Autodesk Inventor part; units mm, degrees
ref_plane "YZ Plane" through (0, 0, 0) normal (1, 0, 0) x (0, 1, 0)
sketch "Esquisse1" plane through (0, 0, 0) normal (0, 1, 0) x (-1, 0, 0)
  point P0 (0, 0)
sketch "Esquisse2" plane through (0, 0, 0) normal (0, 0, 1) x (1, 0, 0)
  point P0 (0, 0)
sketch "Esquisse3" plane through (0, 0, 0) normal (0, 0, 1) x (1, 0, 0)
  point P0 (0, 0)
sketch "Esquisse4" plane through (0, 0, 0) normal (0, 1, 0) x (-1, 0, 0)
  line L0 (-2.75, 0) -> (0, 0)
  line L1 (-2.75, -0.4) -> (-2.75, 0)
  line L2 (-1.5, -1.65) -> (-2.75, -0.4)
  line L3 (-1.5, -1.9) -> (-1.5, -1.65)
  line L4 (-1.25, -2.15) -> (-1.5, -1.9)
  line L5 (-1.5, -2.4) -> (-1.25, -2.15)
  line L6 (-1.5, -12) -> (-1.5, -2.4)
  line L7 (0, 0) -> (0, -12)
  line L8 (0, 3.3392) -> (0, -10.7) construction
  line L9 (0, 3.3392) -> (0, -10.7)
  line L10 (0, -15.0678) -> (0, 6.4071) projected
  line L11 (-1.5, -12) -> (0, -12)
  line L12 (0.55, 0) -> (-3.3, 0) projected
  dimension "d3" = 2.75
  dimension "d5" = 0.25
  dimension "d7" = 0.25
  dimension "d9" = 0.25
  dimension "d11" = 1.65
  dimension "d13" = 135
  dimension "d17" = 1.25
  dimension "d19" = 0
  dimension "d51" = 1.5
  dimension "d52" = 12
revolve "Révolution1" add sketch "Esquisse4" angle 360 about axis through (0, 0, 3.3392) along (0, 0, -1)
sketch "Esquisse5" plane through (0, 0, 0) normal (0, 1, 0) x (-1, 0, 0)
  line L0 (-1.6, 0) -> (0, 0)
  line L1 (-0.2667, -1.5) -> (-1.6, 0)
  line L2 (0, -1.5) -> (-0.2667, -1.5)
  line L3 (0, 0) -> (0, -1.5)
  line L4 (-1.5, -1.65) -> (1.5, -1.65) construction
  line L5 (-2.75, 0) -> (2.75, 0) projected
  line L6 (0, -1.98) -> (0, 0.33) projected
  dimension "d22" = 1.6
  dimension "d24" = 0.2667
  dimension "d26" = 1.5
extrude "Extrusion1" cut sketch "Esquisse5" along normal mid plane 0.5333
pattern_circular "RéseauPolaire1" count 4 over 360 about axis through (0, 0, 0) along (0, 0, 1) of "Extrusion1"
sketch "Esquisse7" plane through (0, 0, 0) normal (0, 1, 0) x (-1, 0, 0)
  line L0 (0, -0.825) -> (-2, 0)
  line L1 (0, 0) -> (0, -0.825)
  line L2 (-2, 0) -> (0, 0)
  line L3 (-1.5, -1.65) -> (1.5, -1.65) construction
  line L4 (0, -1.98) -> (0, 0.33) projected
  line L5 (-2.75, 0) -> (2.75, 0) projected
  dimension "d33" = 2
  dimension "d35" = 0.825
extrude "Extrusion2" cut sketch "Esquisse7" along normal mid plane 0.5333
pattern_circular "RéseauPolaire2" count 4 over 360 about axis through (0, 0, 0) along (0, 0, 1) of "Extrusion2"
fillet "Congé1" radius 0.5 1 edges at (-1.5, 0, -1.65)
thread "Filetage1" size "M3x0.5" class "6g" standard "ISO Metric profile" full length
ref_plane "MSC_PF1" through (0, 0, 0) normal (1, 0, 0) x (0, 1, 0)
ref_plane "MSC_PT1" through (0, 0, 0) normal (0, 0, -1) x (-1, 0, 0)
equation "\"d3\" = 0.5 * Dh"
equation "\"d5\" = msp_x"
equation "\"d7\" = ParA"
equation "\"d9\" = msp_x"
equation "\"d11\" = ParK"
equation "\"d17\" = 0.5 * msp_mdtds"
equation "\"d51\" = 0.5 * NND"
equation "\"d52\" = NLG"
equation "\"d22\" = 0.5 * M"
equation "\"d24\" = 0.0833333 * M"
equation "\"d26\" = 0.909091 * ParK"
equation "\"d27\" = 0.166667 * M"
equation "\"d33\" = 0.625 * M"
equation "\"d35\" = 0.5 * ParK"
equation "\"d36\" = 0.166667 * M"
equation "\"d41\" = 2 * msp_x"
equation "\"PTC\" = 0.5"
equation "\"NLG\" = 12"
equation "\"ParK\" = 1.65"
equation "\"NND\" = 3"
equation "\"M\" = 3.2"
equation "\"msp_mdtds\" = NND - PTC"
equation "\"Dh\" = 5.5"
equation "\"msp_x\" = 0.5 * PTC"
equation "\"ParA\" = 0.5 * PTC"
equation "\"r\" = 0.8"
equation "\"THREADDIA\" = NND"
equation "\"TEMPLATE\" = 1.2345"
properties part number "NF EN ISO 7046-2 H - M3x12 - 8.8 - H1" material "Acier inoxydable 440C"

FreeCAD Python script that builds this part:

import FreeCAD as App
import Part
import Sketcher

V = App.Vector


def edges_at(feature, points):
    """Names of the edges that pass closest to the given points."""
    edges = feature.Shape.Edges
    near = lambda p: min(range(len(edges)), key=lambda i: edges[i].distToShape(Part.Vertex(*p))[0])
    return sorted({f"Edge{near(p) + 1}" for p in points})

doc = App.newDocument("Part")
body = doc.addObject("PartDesign::Body", "Body")

# Sketch on XZ plane
sketch1 = doc.addObject("Sketcher::SketchObject", "Sketch")
body.addObject(sketch1)
sketch1.AttachmentSupport = (doc.XZ_Plane, [""])
sketch1.MapMode = "FlatFace"
sketch1.addGeometry(Part.LineSegment(V(0, 0, 0), V(2.75, 0, 0)), False)
sketch1.addGeometry(Part.LineSegment(V(2.75, 0, 0), V(2.75, -0.4, 0)), False)
sketch1.addGeometry(Part.LineSegment(V(2.75, -0.4, 0), V(1.5, -1.65, 0)), False)
sketch1.addGeometry(Part.LineSegment(V(1.5, -1.65, 0), V(1.5, -1.9, 0)), False)
sketch1.addGeometry(Part.LineSegment(V(1.5, -1.9, 0), V(1.25, -2.15, 0)), False)
sketch1.addGeometry(Part.LineSegment(V(1.25, -2.15, 0), V(1.5, -2.4, 0)), False)
sketch1.addGeometry(Part.LineSegment(V(1.5, -2.4, 0), V(1.5, -12, 0)), False)
sketch1.addGeometry(Part.LineSegment(V(1.5, -12, 0), V(0, -12, 0)), False)
sketch1.addGeometry(Part.LineSegment(V(0, -12, 0), V(0, 0, 0)), False)
sketch1.addConstraint(Sketcher.Constraint("Coincident", 0, 2, 1, 1))
sketch1.addConstraint(Sketcher.Constraint("Coincident", 1, 2, 2, 1))
sketch1.addConstraint(Sketcher.Constraint("Coincident", 2, 2, 3, 1))
sketch1.addConstraint(Sketcher.Constraint("Coincident", 3, 2, 4, 1))
sketch1.addConstraint(Sketcher.Constraint("Coincident", 4, 2, 5, 1))
sketch1.addConstraint(Sketcher.Constraint("Coincident", 5, 2, 6, 1))
sketch1.addConstraint(Sketcher.Constraint("Coincident", 6, 2, 7, 1))
sketch1.addConstraint(Sketcher.Constraint("Coincident", 7, 2, 8, 1))
sketch1.addConstraint(Sketcher.Constraint("Coincident", 8, 2, 0, 1))
sketch1.addConstraint(Sketcher.Constraint("Horizontal", 0))
sketch1.addConstraint(Sketcher.Constraint("Vertical", 1))
sketch1.addConstraint(Sketcher.Constraint("Vertical", 3))
sketch1.addConstraint(Sketcher.Constraint("Vertical", 6))
sketch1.addConstraint(Sketcher.Constraint("Horizontal", 7))
sketch1.addConstraint(Sketcher.Constraint("Vertical", 8))
sketch1.addConstraint(Sketcher.Constraint("Coincident", 8, 2, -1, 1))
sketch1.addConstraint(Sketcher.Constraint("Parallel", 2, 4))
sketch1.addConstraint(Sketcher.Constraint("Perpendicular", 4, 5))
sketch1.addConstraint(Sketcher.Constraint("Vertical", 3, 2, 5, 2))
sketch1.addConstraint(Sketcher.Constraint("Equal", 4, 5))
sketch1.addConstraint(Sketcher.Constraint("DistanceY", 8, 1, 8, 2, 12.0))
sketch1.addConstraint(Sketcher.Constraint("DistanceX", 7, 2, 7, 1, 1.5))
sketch1.addConstraint(Sketcher.Constraint("DistanceX", 0, 1, 0, 2, 2.75))
sketch1.addConstraint(Sketcher.Constraint("DistanceY", 3, 2, 3, 1, 0.25))
sketch1.addConstraint(Sketcher.Constraint("DistanceX", 4, 2, 1, 2, 1.5))
sketch1.addConstraint(Sketcher.Constraint("DistanceY", 2, 2, -1, 1, 1.65))
revolution = doc.addObject("PartDesign::Revolution", "Revolution")
body.addObject(revolution)
revolution.Profile = sketch1
revolution.ReferenceAxis = (sketch1, ["V_Axis"])
revolution.Angle = 360

# Sketch on XZ plane
sketch2 = doc.addObject("Sketcher::SketchObject", "Sketch001")
body.addObject(sketch2)
sketch2.AttachmentSupport = (doc.XZ_Plane, [""])
sketch2.MapMode = "FlatFace"
sketch2.addGeometry(Part.LineSegment(V(0, 0, 0), V(1.6, 0, 0)), False)
sketch2.addGeometry(Part.LineSegment(V(1.6, 0, 0), V(0.27, -1.5, 0)), False)
sketch2.addGeometry(Part.LineSegment(V(0.27, -1.5, 0), V(0, -1.5, 0)), False)
sketch2.addGeometry(Part.LineSegment(V(0, -1.5, 0), V(0, 0, 0)), False)
sketch2.addConstraint(Sketcher.Constraint("Coincident", 0, 2, 1, 1))
sketch2.addConstraint(Sketcher.Constraint("Coincident", 1, 2, 2, 1))
sketch2.addConstraint(Sketcher.Constraint("Coincident", 2, 2, 3, 1))
sketch2.addConstraint(Sketcher.Constraint("Coincident", 3, 2, 0, 1))
sketch2.addConstraint(Sketcher.Constraint("Horizontal", 0))
sketch2.addConstraint(Sketcher.Constraint("Horizontal", 2))
sketch2.addConstraint(Sketcher.Constraint("Vertical", 3))
sketch2.addConstraint(Sketcher.Constraint("Coincident", 3, 2, -1, 1))
sketch2.addConstraint(Sketcher.Constraint("DistanceX", 0, 1, 0, 2, 1.6))
sketch2.addConstraint(Sketcher.Constraint("DistanceY", 3, 1, 3, 2, 1.5))
sketch2.addConstraint(Sketcher.Constraint("DistanceX", 2, 2, 2, 1, 0.2667))
pocket1 = doc.addObject("PartDesign::Pocket", "Pocket")
body.addObject(pocket1)
pocket1.Profile = sketch2
pocket1.Length = 0.5333
pocket1.Midplane = True
doc.recompute()

polarpattern = doc.addObject("PartDesign::PolarPattern", "PolarPattern")
body.addObject(polarpattern)
polarpattern.Originals = [pocket1]
polarpattern.Axis = (doc.Z_Axis, [""])
polarpattern.Angle = 360
polarpattern.Occurrences = 4
body.Tip = polarpattern

# Sketch on XZ plane
sketch3 = doc.addObject("Sketcher::SketchObject", "Sketch002")
body.addObject(sketch3)
sketch3.AttachmentSupport = (doc.XZ_Plane, [""])
sketch3.MapMode = "FlatFace"
sketch3.addGeometry(Part.LineSegment(V(2, 0, 0), V(0, -0.8, 0)), False)
sketch3.addGeometry(Part.LineSegment(V(0, -0.8, 0), V(0, 0, 0)), False)
sketch3.addGeometry(Part.LineSegment(V(0, 0, 0), V(2, 0, 0)), False)
sketch3.addConstraint(Sketcher.Constraint("Coincident", 0, 2, 1, 1))
sketch3.addConstraint(Sketcher.Constraint("Coincident", 1, 2, 2, 1))
sketch3.addConstraint(Sketcher.Constraint("Coincident", 2, 2, 0, 1))
sketch3.addConstraint(Sketcher.Constraint("Vertical", 1))
sketch3.addConstraint(Sketcher.Constraint("Horizontal", 2))
sketch3.addConstraint(Sketcher.Constraint("Coincident", 1, 2, -1, 1))
sketch3.addConstraint(Sketcher.Constraint("DistanceX", 2, 1, 2, 2, 2.0))
sketch3.addConstraint(Sketcher.Constraint("DistanceY", 1, 1, 1, 2, 0.825))
pocket2 = doc.addObject("PartDesign::Pocket", "Pocket001")
body.addObject(pocket2)
pocket2.Profile = sketch3
pocket2.Length = 0.5333
pocket2.Midplane = True
doc.recompute()

polarpattern2 = doc.addObject("PartDesign::PolarPattern", "PolarPattern001")
body.addObject(polarpattern2)
polarpattern2.Originals = [pocket2]
polarpattern2.Axis = (doc.Z_Axis, [""])
polarpattern2.Angle = 360
polarpattern2.Occurrences = 4
body.Tip = polarpattern2
doc.recompute()

fillet = doc.addObject("PartDesign::Fillet", "Fillet")
body.addObject(fillet)
fillet.Base = (polarpattern2, edges_at(polarpattern2, [(-1.5, 0, -1.65)]))
fillet.Radius = 0.5

doc.recompute()
